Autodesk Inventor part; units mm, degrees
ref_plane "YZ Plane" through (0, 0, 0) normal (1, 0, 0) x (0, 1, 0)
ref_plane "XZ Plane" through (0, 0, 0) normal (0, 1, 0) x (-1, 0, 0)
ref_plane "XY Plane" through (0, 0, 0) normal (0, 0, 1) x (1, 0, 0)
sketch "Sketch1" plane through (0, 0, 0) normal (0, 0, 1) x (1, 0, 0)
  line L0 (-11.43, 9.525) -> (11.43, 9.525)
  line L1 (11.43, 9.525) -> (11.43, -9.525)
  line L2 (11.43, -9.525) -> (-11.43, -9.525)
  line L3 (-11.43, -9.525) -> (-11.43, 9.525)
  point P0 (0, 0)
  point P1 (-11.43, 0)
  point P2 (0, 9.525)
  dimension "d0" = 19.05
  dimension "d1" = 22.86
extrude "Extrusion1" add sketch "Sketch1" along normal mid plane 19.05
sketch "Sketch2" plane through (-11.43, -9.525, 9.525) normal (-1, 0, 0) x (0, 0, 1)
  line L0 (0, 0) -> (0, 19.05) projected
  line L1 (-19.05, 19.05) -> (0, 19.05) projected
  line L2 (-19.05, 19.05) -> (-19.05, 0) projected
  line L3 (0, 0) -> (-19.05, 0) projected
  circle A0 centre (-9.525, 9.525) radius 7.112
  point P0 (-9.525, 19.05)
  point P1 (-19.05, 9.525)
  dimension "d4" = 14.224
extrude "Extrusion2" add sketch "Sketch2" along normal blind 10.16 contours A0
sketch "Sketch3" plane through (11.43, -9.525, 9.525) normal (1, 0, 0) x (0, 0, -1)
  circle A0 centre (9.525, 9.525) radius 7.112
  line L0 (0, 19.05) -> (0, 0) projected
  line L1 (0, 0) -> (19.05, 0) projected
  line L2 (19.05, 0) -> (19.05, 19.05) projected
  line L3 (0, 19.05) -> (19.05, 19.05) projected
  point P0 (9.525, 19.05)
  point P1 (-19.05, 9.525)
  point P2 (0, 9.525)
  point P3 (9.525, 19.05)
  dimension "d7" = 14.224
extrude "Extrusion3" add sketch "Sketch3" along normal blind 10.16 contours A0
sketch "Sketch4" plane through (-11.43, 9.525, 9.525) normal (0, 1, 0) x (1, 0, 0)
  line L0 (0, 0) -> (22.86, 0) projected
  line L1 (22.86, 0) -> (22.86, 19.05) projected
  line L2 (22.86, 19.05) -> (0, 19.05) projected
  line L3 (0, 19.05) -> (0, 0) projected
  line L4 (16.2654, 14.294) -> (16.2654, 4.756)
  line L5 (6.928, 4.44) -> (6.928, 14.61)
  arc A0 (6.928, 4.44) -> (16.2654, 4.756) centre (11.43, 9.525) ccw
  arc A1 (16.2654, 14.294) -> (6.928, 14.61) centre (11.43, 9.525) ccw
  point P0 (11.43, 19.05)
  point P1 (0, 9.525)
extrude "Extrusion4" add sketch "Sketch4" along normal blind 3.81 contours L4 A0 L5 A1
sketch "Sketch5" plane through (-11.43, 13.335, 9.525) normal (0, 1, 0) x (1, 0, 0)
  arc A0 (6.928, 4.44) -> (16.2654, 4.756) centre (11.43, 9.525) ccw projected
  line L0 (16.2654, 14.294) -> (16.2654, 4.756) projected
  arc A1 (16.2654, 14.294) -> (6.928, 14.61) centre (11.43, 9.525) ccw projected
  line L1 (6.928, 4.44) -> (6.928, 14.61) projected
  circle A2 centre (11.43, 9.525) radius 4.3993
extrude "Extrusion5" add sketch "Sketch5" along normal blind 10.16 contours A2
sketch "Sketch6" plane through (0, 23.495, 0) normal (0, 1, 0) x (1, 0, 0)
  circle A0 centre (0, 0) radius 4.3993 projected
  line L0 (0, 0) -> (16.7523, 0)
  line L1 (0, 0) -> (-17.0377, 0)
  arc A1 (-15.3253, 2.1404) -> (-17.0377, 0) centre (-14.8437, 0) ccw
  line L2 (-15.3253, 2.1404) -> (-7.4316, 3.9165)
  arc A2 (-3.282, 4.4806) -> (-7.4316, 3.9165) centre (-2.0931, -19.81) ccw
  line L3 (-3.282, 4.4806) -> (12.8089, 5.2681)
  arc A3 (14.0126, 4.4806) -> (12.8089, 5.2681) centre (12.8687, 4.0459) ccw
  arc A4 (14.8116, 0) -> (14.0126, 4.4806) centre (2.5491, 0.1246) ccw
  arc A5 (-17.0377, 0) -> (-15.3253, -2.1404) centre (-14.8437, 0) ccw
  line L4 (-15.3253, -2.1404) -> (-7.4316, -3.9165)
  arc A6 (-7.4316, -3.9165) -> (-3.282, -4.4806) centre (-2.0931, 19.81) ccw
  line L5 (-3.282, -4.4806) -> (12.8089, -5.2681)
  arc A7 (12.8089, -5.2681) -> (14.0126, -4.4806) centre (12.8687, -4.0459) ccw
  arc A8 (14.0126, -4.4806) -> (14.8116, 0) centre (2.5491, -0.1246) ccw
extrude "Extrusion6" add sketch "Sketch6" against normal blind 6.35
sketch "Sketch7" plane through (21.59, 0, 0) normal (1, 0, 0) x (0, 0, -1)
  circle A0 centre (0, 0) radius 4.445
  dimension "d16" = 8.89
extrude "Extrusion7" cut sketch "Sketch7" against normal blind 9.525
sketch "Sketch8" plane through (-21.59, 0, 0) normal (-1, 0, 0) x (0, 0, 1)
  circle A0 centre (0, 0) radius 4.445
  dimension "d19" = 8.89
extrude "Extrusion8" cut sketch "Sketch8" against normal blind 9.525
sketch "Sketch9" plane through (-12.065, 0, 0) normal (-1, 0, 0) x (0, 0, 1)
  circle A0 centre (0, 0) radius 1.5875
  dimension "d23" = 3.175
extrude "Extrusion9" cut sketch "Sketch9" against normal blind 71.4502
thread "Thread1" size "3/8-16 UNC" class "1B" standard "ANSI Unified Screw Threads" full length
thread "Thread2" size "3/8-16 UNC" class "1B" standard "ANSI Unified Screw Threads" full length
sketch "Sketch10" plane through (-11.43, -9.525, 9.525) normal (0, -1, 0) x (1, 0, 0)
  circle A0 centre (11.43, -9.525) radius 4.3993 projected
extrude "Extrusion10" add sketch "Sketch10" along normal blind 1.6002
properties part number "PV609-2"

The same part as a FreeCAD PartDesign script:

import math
import FreeCAD as App
import Part
import Sketcher
Q = App.Units.Quantity

doc = App.newDocument("Part")
body = doc.addObject("PartDesign::Body", "Body")

sketch1 = body.newObject("Sketcher::SketchObject", "Sketch")
sketch1.AttachmentSupport = (doc.getObject("XY_Plane"), [""])
sketch1.MapMode = "FlatFace"
sketch1.addGeometry(Part.LineSegment(App.Vector(11, 10, 0), App.Vector(-11, 10, 0)), False)
sketch1.addGeometry(Part.LineSegment(App.Vector(-11, 10, 0), App.Vector(-11, -10, 0)), False)
sketch1.addGeometry(Part.LineSegment(App.Vector(-11, -10, 0), App.Vector(11, -10, 0)), False)
sketch1.addGeometry(Part.LineSegment(App.Vector(11, -10, 0), App.Vector(11, 10, 0)), False)
sketch1.addConstraint(Sketcher.Constraint("Coincident", 0, 2, 1, 1))
sketch1.addConstraint(Sketcher.Constraint("Coincident", 1, 2, 2, 1))
sketch1.addConstraint(Sketcher.Constraint("Coincident", 2, 2, 3, 1))
sketch1.addConstraint(Sketcher.Constraint("Coincident", 3, 2, 0, 1))
sketch1.addConstraint(Sketcher.Constraint("Horizontal", 0))
sketch1.addConstraint(Sketcher.Constraint("Vertical", 1))
sketch1.addConstraint(Sketcher.Constraint("Horizontal", 2))
sketch1.addConstraint(Sketcher.Constraint("Vertical", 3))
sketch1.addConstraint(Sketcher.Constraint("Symmetric", 0, 2, 2, 2, -1, 1))
sketch1.addConstraint(Sketcher.Constraint("DistanceX", 0, 2, 0, 1, Q("0.9 in")))
sketch1.addConstraint(Sketcher.Constraint("DistanceY", 1, 2, 1, 1, Q("0.75 in")))
pad1 = body.newObject("PartDesign::Pad", "Pad")
pad1.Profile = sketch1
pad1.Length = Q("0.75 in")
pad1.Midplane = True

sketch2 = body.newObject("Sketcher::SketchObject", "Sketch001")
sketch2.AttachmentSupport = (doc.getObject("YZ_Plane"), [""])
sketch2.MapMode = "FlatFace"
sketch2.AttachmentOffset = App.Placement(App.Vector(0, 0, -0.45 * 25.4), App.Rotation())
sketch2.addGeometry(Part.Circle(App.Vector(0, 0, 0), App.Vector(0, 0, 1), 7), False)
sketch2.addConstraint(Sketcher.Constraint("Coincident", 0, 3, -1, 1))
sketch2.addConstraint(Sketcher.Constraint("Diameter", 0, Q("0.56 in")))
pad2 = body.newObject("PartDesign::Pad", "Pad001")
pad2.Profile = sketch2
pad2.Length = Q("0.4 in")
pad2.Reversed = True

sketch3 = body.newObject("Sketcher::SketchObject", "Sketch002")
sketch3.AttachmentSupport = (doc.getObject("YZ_Plane"), [""])
sketch3.MapMode = "FlatFace"
sketch3.AttachmentOffset = App.Placement(App.Vector(0, 0, 0.45 * 25.4), App.Rotation())
sketch3.addGeometry(Part.Circle(App.Vector(0, 0, 0), App.Vector(0, 0, 1), 7), False)
sketch3.addConstraint(Sketcher.Constraint("Coincident", 0, 3, -1, 1))
sketch3.addConstraint(Sketcher.Constraint("Diameter", 0, Q("0.56 in")))
pad3 = body.newObject("PartDesign::Pad", "Pad002")
pad3.Profile = sketch3
pad3.Length = Q("0.4 in")

sketch4 = body.newObject("Sketcher::SketchObject", "Sketch003")
sketch4.AttachmentSupport = (doc.getObject("XZ_Plane"), [""])
sketch4.MapMode = "FlatFace"
sketch4.AttachmentOffset = App.Placement(App.Vector(0, 0, -0.375 * 25.4), App.Rotation())
sketch4.addGeometry(Part.LineSegment(App.Vector(5, 5, 0), App.Vector(5, -5, 0)), False)
sketch4.addGeometry(Part.ArcOfCircle(Part.Circle(App.Vector(0, 0, 0), App.Vector(0, 0, 1), 7), math.radians(-132), math.radians(-45)), False)
sketch4.addGeometry(Part.LineSegment(App.Vector(-5, -5, 0), App.Vector(-5, 5, 0)), False)
sketch4.addGeometry(Part.ArcOfCircle(Part.Circle(App.Vector(0, 0, 0), App.Vector(0, 0, 1), 7), math.radians(45), math.radians(132)), False)
sketch4.addConstraint(Sketcher.Constraint("Coincident", 0, 2, 1, 2))
sketch4.addConstraint(Sketcher.Constraint("Coincident", 1, 1, 2, 1))
sketch4.addConstraint(Sketcher.Constraint("Coincident", 2, 2, 3, 2))
sketch4.addConstraint(Sketcher.Constraint("Coincident", 3, 1, 0, 1))
sketch4.addConstraint(Sketcher.Constraint("Vertical", 0))
sketch4.addConstraint(Sketcher.Constraint("Vertical", 2))
sketch4.addConstraint(Sketcher.Constraint("Coincident", 1, 3, -1, 1))
sketch4.addConstraint(Sketcher.Constraint("Coincident", 3, 3, -1, 1))
sketch4.addConstraint(Sketcher.Constraint("Equal", 1, 3))
sketch4.addConstraint(Sketcher.Constraint("Radius", 1, Q("6.7916 mm")))
sketch4.addConstraint(Sketcher.Constraint("DistanceY", 0, 2, 0, 1, Q("0.3755 in")))
sketch4.addConstraint(Sketcher.Constraint("DistanceY", 2, 1, 2, 2, Q("0.4004 in")))
pad4 = body.newObject("PartDesign::Pad", "Pad003")
pad4.Profile = sketch4
pad4.Length = Q("0.15 in")
pad4.Reversed = True

sketch5 = body.newObject("Sketcher::SketchObject", "Sketch004")
sketch5.AttachmentSupport = (doc.getObject("XZ_Plane"), [""])
sketch5.MapMode = "FlatFace"
sketch5.AttachmentOffset = App.Placement(App.Vector(0, 0, -0.525 * 25.4), App.Rotation())
sketch5.addGeometry(Part.Circle(App.Vector(0, 0, 0), App.Vector(0, 0, 1), 4.4), False)
sketch5.addConstraint(Sketcher.Constraint("Coincident", 0, 3, -1, 1))
sketch5.addConstraint(Sketcher.Constraint("Diameter", 0, Q("0.3464 in")))
pad5 = body.newObject("PartDesign::Pad", "Pad004")
pad5.Profile = sketch5
pad5.Length = Q("0.4 in")
pad5.Reversed = True

sketch6 = body.newObject("Sketcher::SketchObject", "Sketch005")
sketch6.AttachmentSupport = (doc.getObject("XZ_Plane"), [""])
sketch6.MapMode = "FlatFace"
sketch6.AttachmentOffset = App.Placement(App.Vector(0, 0, -0.925 * 25.4), App.Rotation())
sketch6.addGeometry(Part.ArcOfCircle(Part.Circle(App.Vector(-14.8, 0, 0), App.Vector(0, 0, 1), 2.2), math.radians(180), math.radians(257)), False)
sketch6.addGeometry(Part.ArcOfCircle(Part.Circle(App.Vector(-14.8, 0, 0), App.Vector(0, 0, 1), 2.2), math.radians(103), math.radians(180)), False)
sketch6.addGeometry(Part.LineSegment(App.Vector(-15.3, 2.1, 0), App.Vector(-7.4, 3.9, 0)), False)
sketch6.addGeometry(Part.ArcOfCircle(Part.Circle(App.Vector(-2.1, -19.8, 0), App.Vector(0, 0, 1), 24.3), math.radians(92.8), math.radians(102.68)), False)
sketch6.addGeometry(Part.LineSegment(App.Vector(-3.3, 4.5, 0), App.Vector(12.8, 5.3, 0)), False)
sketch6.addGeometry(Part.ArcOfCircle(Part.Circle(App.Vector(12.9, 4, 0), App.Vector(0, 0, 1), 1.2), math.radians(21), math.radians(93)), False)
sketch6.addGeometry(Part.ArcOfCircle(Part.Circle(App.Vector(2.6, 0.1, 0), App.Vector(0, 0, 1), 12.3), math.radians(-1), math.radians(21)), False)
sketch6.addGeometry(Part.ArcOfCircle(Part.Circle(App.Vector(2.5, -0.1, 0), App.Vector(0, 0, 1), 12.3), math.radians(-21), math.radians(1)), False)
sketch6.addGeometry(Part.ArcOfCircle(Part.Circle(App.Vector(12.9, -4, 0), App.Vector(0, 0, 1), 1.2), math.radians(-93), math.radians(-21)), False)
sketch6.addGeometry(Part.LineSegment(App.Vector(12.8, -5.3, 0), App.Vector(-3.3, -4.5, 0)), False)
sketch6.addGeometry(Part.ArcOfCircle(Part.Circle(App.Vector(-2.1, 19.8, 0), App.Vector(0, 0, 1), 24.3), math.radians(-102.68), math.radians(-92.8)), False)
sketch6.addGeometry(Part.LineSegment(App.Vector(-7.4, -3.9, 0), App.Vector(-15.3, -2.1, 0)), False)
sketch6.addConstraint(Sketcher.Constraint("Tangent", 0, 1, 1, 2))
sketch6.addConstraint(Sketcher.Constraint("Tangent", 1, 1, 2, 1))
sketch6.addConstraint(Sketcher.Constraint("Tangent", 2, 2, 3, 2))
sketch6.addConstraint(Sketcher.Constraint("Tangent", 3, 1, 4, 1))
sketch6.addConstraint(Sketcher.Constraint("Tangent", 4, 2, 5, 2))
sketch6.addConstraint(Sketcher.Constraint("Tangent", 5, 1, 6, 2))
sketch6.addConstraint(Sketcher.Constraint("Coincident", 6, 1, 7, 2))
sketch6.addConstraint(Sketcher.Constraint("Tangent", 7, 1, 8, 2))
sketch6.addConstraint(Sketcher.Constraint("Tangent", 8, 1, 9, 1))
sketch6.addConstraint(Sketcher.Constraint("Tangent", 9, 2, 10, 2))
sketch6.addConstraint(Sketcher.Constraint("Tangent", 10, 1, 11, 1))
sketch6.addConstraint(Sketcher.Constraint("Tangent", 11, 2, 0, 2))
sketch6.addConstraint(Sketcher.Constraint("Equal", 0, 1))
sketch6.addConstraint(Sketcher.Constraint("Equal", 5, 8))
sketch6.addConstraint(Sketcher.Constraint("Equal", 3, 10))
sketch6.addConstraint(Sketcher.Constraint("Symmetric", 5, 3, 8, 3, -1))
sketch6.addConstraint(Sketcher.Constraint("Symmetric", 3, 3, 10, 3, -1))
sketch6.addConstraint(Sketcher.Constraint("PointOnObject", 0, 3, -1))
sketch6.addConstraint(Sketcher.Constraint("PointOnObject", 0, 1, -1))
sketch6.addConstraint(Sketcher.Constraint("PointOnObject", 6, 1, -1))
sketch6.addConstraint(Sketcher.Constraint("Horizontal", 3, 1, 5, 1))
sketch6.addConstraint(Sketcher.Constraint("Radius", 6, Q("0.4827 in")))
sketch6.addConstraint(Sketcher.Constraint("Radius", 7, Q("0.4829 in")))
sketch6.addConstraint(Sketcher.Constraint("Angle", 2, Q("12.6805 deg")))
sketch6.addConstraint(Sketcher.Constraint("Radius", 0, Q("2.194 mm")))
sketch6.addConstraint(Sketcher.Constraint("Radius", 3, Q("24.3197 mm")))
sketch6.addConstraint(Sketcher.Constraint("Radius", 5, Q("1.2237 mm")))
sketch6.addConstraint(Sketcher.Constraint("DistanceX", 0, 3, 3, 3, Q("0.502 in")))
sketch6.addConstraint(Sketcher.Constraint("DistanceY", 6, 3, 10, 3, Q("0.775 in")))
sketch6.addConstraint(Sketcher.Constraint("DistanceX", 0, 3, -1, 1, Q("0.5844 in")))
sketch6.addConstraint(Sketcher.Constraint("DistanceX", 3, 1, 4, 2, Q("0.6335 in")))
pad6 = body.newObject("PartDesign::Pad", "Pad005")
pad6.Profile = sketch6
pad6.Length = Q("0.25 in")

sketch7 = body.newObject("Sketcher::SketchObject", "Sketch006")
sketch7.AttachmentSupport = (doc.getObject("YZ_Plane"), [""])
sketch7.MapMode = "FlatFace"
sketch7.AttachmentOffset = App.Placement(App.Vector(0, 0, 0.85 * 25.4), App.Rotation())
sketch7.addGeometry(Part.Circle(App.Vector(0, 0, 0), App.Vector(0, 0, 1), 4.4), False)
sketch7.addConstraint(Sketcher.Constraint("Coincident", 0, 3, -1, 1))
sketch7.addConstraint(Sketcher.Constraint("Diameter", 0, Q("0.35 in")))
pocket1 = body.newObject("PartDesign::Pocket", "Pocket")
pocket1.Profile = sketch7
pocket1.Length = Q("0.375 in")

sketch8 = body.newObject("Sketcher::SketchObject", "Sketch007")
sketch8.AttachmentSupport = (doc.getObject("YZ_Plane"), [""])
sketch8.MapMode = "FlatFace"
sketch8.AttachmentOffset = App.Placement(App.Vector(0, 0, -0.85 * 25.4), App.Rotation())
sketch8.addGeometry(Part.Circle(App.Vector(0, 0, 0), App.Vector(0, 0, 1), 4.4), False)
sketch8.addConstraint(Sketcher.Constraint("Coincident", 0, 3, -1, 1))
sketch8.addConstraint(Sketcher.Constraint("Diameter", 0, Q("0.35 in")))
pocket2 = body.newObject("PartDesign::Pocket", "Pocket001")
pocket2.Profile = sketch8
pocket2.Length = Q("0.375 in")
pocket2.Reversed = True

sketch9 = body.newObject("Sketcher::SketchObject", "Sketch008")
sketch9.AttachmentSupport = (doc.getObject("YZ_Plane"), [""])
sketch9.MapMode = "FlatFace"
sketch9.AttachmentOffset = App.Placement(App.Vector(0, 0, -0.475 * 25.4), App.Rotation())
sketch9.addGeometry(Part.Circle(App.Vector(0, 0, 0), App.Vector(0, 0, 1), 1.6), False)
sketch9.addConstraint(Sketcher.Constraint("Coincident", 0, 3, -1, 1))
sketch9.addConstraint(Sketcher.Constraint("Diameter", 0, Q("0.125 in")))
pocket3 = body.newObject("PartDesign::Pocket", "Pocket002")
pocket3.Profile = sketch9
pocket3.Length = Q("2.813 in")
pocket3.Reversed = True

sketch10 = body.newObject("Sketcher::SketchObject", "Sketch009")
sketch10.AttachmentSupport = (doc.getObject("XZ_Plane"), [""])
sketch10.MapMode = "FlatFace"
sketch10.AttachmentOffset = App.Placement(App.Vector(0, 0, 0.375 * 25.4), App.Rotation())
sketch10.addGeometry(Part.Circle(App.Vector(0, 0, 0), App.Vector(0, 0, 1), 4.4), False)
sketch10.addConstraint(Sketcher.Constraint("Coincident", 0, 3, -1, 1))
sketch10.addConstraint(Sketcher.Constraint("Diameter", 0, Q("0.3464 in")))
pad7 = body.newObject("PartDesign::Pad", "Pad006")
pad7.Profile = sketch10
pad7.Length = Q("0.063 in")

doc.recompute()
